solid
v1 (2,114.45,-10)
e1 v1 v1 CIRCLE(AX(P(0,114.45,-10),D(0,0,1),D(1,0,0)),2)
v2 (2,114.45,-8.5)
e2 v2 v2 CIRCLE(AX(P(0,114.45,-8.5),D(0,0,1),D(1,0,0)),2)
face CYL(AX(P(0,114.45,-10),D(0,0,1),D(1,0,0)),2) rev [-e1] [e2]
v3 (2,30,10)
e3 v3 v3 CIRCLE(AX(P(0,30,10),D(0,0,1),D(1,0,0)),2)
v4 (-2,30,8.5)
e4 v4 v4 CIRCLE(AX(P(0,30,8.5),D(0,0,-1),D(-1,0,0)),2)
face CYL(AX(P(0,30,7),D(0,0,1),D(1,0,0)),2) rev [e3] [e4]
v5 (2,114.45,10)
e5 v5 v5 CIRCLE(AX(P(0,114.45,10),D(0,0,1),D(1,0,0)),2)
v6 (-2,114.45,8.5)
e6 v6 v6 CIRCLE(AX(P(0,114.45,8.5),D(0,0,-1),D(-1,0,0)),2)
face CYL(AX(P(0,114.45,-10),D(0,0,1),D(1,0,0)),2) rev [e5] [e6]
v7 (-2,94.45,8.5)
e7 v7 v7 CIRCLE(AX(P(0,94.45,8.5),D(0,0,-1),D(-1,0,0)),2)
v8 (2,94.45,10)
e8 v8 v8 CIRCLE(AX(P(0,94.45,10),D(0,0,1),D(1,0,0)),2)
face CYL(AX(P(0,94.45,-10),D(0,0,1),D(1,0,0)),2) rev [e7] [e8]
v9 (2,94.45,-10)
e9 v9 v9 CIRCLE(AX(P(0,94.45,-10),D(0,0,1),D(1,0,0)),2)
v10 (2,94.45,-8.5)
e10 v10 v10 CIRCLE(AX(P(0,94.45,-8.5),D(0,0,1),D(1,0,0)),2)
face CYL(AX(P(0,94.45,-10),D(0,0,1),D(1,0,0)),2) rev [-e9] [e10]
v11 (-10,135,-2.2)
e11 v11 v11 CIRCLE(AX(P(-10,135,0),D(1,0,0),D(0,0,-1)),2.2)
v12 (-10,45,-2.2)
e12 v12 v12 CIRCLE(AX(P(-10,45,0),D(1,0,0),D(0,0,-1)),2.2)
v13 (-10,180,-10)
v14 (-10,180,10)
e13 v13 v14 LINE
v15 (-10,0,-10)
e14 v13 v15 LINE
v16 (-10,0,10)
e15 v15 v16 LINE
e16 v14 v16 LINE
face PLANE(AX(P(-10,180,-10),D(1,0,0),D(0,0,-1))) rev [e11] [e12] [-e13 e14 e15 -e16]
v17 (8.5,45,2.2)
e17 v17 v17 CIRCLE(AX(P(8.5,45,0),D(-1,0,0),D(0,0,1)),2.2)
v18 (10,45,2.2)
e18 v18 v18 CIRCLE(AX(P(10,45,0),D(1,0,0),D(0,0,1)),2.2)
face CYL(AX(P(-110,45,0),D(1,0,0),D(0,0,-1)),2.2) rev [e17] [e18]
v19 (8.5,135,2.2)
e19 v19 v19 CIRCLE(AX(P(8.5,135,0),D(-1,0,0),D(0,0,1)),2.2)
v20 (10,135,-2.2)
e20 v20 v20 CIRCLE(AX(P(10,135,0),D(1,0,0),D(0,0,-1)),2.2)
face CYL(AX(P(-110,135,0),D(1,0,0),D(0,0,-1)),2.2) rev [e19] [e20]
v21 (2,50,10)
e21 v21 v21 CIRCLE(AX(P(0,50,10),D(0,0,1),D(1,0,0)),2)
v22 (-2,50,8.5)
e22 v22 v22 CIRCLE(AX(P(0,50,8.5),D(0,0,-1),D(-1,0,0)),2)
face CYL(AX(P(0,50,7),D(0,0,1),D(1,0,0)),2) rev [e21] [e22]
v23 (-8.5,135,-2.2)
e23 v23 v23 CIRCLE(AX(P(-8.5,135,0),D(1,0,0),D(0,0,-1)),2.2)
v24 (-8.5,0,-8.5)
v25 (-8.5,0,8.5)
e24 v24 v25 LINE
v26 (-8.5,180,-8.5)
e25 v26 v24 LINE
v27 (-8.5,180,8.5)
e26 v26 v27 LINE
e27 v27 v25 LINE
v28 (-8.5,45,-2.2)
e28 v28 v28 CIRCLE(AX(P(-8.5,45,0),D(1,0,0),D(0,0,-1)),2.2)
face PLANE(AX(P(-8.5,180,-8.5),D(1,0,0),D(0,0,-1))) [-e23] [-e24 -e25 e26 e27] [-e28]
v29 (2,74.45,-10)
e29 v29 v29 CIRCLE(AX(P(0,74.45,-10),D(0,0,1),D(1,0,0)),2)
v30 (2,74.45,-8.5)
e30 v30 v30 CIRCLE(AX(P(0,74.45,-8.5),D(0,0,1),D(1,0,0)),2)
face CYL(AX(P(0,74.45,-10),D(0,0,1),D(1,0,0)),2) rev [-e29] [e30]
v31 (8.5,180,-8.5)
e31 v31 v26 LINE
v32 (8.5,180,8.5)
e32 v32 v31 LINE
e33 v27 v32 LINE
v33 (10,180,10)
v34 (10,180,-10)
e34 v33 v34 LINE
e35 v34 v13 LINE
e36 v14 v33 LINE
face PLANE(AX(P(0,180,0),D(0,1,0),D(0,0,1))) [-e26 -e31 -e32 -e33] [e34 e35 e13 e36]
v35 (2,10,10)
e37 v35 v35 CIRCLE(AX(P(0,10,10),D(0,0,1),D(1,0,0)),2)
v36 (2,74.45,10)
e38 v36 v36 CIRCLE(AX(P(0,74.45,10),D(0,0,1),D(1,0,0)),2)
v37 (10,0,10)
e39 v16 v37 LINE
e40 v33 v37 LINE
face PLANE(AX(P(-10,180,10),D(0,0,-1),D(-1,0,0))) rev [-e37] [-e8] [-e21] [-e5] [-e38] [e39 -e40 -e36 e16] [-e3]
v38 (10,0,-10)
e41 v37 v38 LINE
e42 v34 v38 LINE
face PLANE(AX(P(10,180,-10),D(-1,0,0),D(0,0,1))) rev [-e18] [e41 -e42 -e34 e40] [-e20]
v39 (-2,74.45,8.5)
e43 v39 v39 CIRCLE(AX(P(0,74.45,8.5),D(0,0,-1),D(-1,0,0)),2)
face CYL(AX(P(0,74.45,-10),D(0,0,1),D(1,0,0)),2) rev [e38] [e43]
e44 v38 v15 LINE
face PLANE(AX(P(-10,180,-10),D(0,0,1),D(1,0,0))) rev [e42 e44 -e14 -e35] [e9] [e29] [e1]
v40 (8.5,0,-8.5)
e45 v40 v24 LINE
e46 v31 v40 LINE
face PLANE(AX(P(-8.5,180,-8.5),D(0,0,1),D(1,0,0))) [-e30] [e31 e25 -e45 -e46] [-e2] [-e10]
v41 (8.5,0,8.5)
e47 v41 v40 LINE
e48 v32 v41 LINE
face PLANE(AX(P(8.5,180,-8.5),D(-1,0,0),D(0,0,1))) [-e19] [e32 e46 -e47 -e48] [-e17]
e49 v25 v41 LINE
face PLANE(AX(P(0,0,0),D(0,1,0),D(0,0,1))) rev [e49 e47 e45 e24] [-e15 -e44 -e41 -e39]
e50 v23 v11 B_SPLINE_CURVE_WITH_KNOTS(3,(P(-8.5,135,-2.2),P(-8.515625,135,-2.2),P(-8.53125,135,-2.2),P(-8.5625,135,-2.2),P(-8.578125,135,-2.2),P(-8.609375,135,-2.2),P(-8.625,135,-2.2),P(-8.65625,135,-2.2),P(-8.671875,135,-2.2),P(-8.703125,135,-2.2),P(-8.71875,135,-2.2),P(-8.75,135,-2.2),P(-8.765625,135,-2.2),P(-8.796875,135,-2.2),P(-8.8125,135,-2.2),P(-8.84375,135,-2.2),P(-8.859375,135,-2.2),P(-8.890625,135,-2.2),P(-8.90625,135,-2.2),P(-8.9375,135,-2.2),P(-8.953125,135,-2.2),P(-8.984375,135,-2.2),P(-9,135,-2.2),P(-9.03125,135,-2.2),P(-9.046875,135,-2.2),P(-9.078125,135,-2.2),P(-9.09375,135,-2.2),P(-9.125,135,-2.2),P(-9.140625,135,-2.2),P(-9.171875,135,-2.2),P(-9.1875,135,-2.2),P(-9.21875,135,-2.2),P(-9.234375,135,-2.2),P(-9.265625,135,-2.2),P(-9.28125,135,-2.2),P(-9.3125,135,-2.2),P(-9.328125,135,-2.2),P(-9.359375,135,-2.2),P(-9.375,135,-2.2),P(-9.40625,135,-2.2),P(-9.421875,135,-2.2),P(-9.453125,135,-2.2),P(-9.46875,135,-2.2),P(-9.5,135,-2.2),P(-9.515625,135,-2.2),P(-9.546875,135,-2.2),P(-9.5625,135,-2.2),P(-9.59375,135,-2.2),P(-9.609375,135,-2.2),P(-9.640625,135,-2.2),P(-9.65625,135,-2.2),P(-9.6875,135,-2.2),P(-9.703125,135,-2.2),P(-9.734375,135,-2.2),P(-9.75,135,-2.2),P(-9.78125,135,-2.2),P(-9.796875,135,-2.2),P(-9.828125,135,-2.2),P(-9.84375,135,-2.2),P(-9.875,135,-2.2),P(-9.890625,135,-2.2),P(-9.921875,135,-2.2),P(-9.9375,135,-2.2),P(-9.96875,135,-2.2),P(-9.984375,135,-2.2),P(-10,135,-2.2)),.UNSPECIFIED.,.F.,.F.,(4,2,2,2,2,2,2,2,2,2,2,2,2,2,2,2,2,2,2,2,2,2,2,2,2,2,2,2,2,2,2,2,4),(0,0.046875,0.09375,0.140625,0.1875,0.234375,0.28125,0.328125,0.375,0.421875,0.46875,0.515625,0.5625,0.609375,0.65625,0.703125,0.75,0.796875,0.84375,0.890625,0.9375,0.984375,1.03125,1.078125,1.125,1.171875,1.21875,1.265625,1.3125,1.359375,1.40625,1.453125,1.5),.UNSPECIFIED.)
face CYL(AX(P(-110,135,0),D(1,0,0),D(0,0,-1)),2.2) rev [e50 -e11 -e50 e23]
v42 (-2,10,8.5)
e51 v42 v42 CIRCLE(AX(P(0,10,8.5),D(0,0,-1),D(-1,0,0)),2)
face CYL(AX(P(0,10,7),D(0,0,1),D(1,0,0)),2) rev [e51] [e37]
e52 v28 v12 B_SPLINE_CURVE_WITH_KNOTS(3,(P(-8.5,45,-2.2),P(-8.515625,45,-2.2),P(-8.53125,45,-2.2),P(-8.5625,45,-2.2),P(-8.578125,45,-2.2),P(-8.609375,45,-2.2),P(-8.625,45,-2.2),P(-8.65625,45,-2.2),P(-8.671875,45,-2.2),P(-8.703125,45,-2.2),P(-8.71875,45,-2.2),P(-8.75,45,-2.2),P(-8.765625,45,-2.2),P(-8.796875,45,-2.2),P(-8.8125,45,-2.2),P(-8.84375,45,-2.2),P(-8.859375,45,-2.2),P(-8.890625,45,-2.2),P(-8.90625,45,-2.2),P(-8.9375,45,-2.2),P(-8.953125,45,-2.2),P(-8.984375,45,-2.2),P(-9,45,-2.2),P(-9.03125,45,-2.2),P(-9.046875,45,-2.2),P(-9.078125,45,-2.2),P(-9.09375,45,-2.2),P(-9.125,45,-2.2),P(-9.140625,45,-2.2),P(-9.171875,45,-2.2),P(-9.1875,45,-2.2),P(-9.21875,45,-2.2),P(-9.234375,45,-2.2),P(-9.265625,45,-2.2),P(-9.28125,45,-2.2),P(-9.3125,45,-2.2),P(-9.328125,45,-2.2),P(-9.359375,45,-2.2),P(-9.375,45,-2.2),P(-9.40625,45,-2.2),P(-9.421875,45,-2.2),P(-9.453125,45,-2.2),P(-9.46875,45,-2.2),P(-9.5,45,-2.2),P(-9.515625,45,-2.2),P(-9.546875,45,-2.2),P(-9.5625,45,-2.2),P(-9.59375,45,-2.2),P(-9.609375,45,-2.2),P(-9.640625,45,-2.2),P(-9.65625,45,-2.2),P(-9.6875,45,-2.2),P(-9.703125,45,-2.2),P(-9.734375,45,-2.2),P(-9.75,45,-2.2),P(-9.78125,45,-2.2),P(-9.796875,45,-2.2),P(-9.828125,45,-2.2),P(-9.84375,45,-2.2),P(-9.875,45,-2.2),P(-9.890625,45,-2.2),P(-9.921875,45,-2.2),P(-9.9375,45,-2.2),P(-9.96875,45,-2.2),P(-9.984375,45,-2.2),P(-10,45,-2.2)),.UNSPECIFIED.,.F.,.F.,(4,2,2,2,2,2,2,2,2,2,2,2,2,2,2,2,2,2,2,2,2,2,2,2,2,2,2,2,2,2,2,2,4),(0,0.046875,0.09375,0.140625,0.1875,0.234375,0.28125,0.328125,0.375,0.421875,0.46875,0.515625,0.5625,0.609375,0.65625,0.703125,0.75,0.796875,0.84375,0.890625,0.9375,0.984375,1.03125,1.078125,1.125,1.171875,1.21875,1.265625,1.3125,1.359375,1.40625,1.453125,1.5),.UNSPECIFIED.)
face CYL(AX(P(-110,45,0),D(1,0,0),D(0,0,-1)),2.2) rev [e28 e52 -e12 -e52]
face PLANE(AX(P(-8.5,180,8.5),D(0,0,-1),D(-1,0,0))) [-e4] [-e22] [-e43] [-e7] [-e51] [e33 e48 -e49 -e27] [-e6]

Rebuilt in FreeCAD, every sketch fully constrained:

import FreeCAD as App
import Part
import Sketcher

V = App.Vector


def add_polygon(sketch, points):
    """Adds a closed chain of lines whose ends are joined by coincident constraints."""
    first, n = sketch.GeometryCount, len(points)
    for a, b in zip(points, points[1:] + points[:1]):
        sketch.addGeometry(Part.LineSegment(App.Vector(*a, 0), App.Vector(*b, 0)), False)
    for i in range(n):
        sketch.addConstraint(Sketcher.Constraint("Coincident", first + i, 2, first + (i + 1) % n, 1))

doc = App.newDocument("Part")
body = doc.addObject("PartDesign::Body", "Body")

sketch1 = body.newObject("Sketcher::SketchObject", "Sketch")
sketch1.AttachmentSupport = (doc.getObject("XZ_Plane"), [""])
sketch1.MapMode = "FlatFace"
add_polygon(sketch1, [(-10, -10), (-10, 10), (10, 10), (10, -10)])
add_polygon(sketch1, [(8, 8), (-8, 8), (-8, -8), (8, -8)])
sketch1.addConstraint([
    Sketcher.Constraint("Vertical", 0),
    Sketcher.Constraint("Horizontal", 1),
    Sketcher.Constraint("Vertical", 2),
    Sketcher.Constraint("Horizontal", 3),
    Sketcher.Constraint("Horizontal", 4),
    Sketcher.Constraint("Vertical", 5),
    Sketcher.Constraint("Horizontal", 6),
    Sketcher.Constraint("Vertical", 7),
    Sketcher.Constraint("Symmetric", 0, 2, 2, 2, -1, 1),
    Sketcher.Constraint("Symmetric", 4, 2, 6, 2, -1, 1),
    Sketcher.Constraint("Equal", 3, 0),
    Sketcher.Constraint("Equal", 6, 5),
    Sketcher.Constraint("DistanceX", 1, 1, 1, 2, 20.0),
    Sketcher.Constraint("DistanceX", 4, 2, 4, 1, 17.0),
])
pad1 = body.newObject("PartDesign::Pad", "Pad")
pad1.Profile = sketch1
pad1.Length = 180
pad1.Reversed = True

sketch2 = body.newObject("Sketcher::SketchObject", "Sketch001")
sketch2.AttachmentSupport = (doc.getObject("YZ_Plane"), [""])
sketch2.MapMode = "FlatFace"
sketch2.AttachmentOffset = App.Placement(V(0, 0, 10), App.Rotation())
sketch2.addGeometry([
    Part.Circle(V(135, 0, 0), V(0, 0, 1), 2.2),
    Part.Circle(V(45, 0, 0), V(0, 0, 1), 2.2),
], False)
sketch2.addConstraint([
    Sketcher.Constraint("Equal", 0, 1),
    Sketcher.Constraint("PointOnObject", 0, 3, -1),
    Sketcher.Constraint("PointOnObject", 1, 3, -1),
    Sketcher.Constraint("Diameter", 0, 4.4),
    Sketcher.Constraint("DistanceX", -1, 1, 0, 3, 135.0),
    Sketcher.Constraint("DistanceX", -1, 1, 1, 3, 45.0),
])
pocket1 = body.newObject("PartDesign::Pocket", "Pocket")
pocket1.Profile = sketch2
pocket1.Length = 120

sketch3 = body.newObject("Sketcher::SketchObject", "Sketch002")
sketch3.AttachmentSupport = (doc.getObject("XY_Plane"), [""])
sketch3.MapMode = "FlatFace"
sketch3.AttachmentOffset = App.Placement(V(0, 0, 10), App.Rotation())
sketch3.addGeometry([
    Part.Circle(V(0, 10, 0), V(0, 0, 1), 2),
    Part.Circle(V(0, 30, 0), V(0, 0, 1), 2),
    Part.Circle(V(0, 50, 0), V(0, 0, 1), 2),
], False)
sketch3.addConstraint([
    Sketcher.Constraint("Equal", 0, 1),
    Sketcher.Constraint("Equal", 1, 2),
    Sketcher.Constraint("PointOnObject", 0, 3, -2),
    Sketcher.Constraint("PointOnObject", 1, 3, -2),
    Sketcher.Constraint("PointOnObject", 2, 3, -2),
    Sketcher.Constraint("Diameter", 0, 4.0),
    Sketcher.Constraint("DistanceY", -1, 1, 0, 3, 10.0),
    Sketcher.Constraint("DistanceY", -1, 1, 1, 3, 30.0),
    Sketcher.Constraint("DistanceY", -1, 1, 2, 3, 50.0),
])
pocket2 = body.newObject("PartDesign::Pocket", "Pocket001")
pocket2.Profile = sketch3
pocket2.Length = 3

sketch4 = body.newObject("Sketcher::SketchObject", "Sketch003")
sketch4.AttachmentSupport = (doc.getObject("XY_Plane"), [""])
sketch4.MapMode = "FlatFace"
sketch4.AttachmentOffset = App.Placement(V(0, 0, 10), App.Rotation())
sketch4.addGeometry([
    Part.Circle(V(0, 74.5, 0), V(0, 0, 1), 2),
    Part.Circle(V(0, 94.5, 0), V(0, 0, 1), 2),
    Part.Circle(V(0, 114.5, 0), V(0, 0, 1), 2),
], False)
sketch4.addConstraint([
    Sketcher.Constraint("Equal", 0, 1),
    Sketcher.Constraint("Equal", 1, 2),
    Sketcher.Constraint("PointOnObject", 0, 3, -2),
    Sketcher.Constraint("PointOnObject", 1, 3, -2),
    Sketcher.Constraint("PointOnObject", 2, 3, -2),
    Sketcher.Constraint("Diameter", 0, 4.0),
    Sketcher.Constraint("DistanceY", 0, 3, 1, 3, 20.0),
    Sketcher.Constraint("DistanceY", 1, 3, 2, 3, 20.0),
    Sketcher.Constraint("DistanceY", -1, 1, 0, 3, 74.45),
])
pocket3 = body.newObject("PartDesign::Pocket", "Pocket002")
pocket3.Profile = sketch4
pocket3.Length = 20

doc.recompute()
